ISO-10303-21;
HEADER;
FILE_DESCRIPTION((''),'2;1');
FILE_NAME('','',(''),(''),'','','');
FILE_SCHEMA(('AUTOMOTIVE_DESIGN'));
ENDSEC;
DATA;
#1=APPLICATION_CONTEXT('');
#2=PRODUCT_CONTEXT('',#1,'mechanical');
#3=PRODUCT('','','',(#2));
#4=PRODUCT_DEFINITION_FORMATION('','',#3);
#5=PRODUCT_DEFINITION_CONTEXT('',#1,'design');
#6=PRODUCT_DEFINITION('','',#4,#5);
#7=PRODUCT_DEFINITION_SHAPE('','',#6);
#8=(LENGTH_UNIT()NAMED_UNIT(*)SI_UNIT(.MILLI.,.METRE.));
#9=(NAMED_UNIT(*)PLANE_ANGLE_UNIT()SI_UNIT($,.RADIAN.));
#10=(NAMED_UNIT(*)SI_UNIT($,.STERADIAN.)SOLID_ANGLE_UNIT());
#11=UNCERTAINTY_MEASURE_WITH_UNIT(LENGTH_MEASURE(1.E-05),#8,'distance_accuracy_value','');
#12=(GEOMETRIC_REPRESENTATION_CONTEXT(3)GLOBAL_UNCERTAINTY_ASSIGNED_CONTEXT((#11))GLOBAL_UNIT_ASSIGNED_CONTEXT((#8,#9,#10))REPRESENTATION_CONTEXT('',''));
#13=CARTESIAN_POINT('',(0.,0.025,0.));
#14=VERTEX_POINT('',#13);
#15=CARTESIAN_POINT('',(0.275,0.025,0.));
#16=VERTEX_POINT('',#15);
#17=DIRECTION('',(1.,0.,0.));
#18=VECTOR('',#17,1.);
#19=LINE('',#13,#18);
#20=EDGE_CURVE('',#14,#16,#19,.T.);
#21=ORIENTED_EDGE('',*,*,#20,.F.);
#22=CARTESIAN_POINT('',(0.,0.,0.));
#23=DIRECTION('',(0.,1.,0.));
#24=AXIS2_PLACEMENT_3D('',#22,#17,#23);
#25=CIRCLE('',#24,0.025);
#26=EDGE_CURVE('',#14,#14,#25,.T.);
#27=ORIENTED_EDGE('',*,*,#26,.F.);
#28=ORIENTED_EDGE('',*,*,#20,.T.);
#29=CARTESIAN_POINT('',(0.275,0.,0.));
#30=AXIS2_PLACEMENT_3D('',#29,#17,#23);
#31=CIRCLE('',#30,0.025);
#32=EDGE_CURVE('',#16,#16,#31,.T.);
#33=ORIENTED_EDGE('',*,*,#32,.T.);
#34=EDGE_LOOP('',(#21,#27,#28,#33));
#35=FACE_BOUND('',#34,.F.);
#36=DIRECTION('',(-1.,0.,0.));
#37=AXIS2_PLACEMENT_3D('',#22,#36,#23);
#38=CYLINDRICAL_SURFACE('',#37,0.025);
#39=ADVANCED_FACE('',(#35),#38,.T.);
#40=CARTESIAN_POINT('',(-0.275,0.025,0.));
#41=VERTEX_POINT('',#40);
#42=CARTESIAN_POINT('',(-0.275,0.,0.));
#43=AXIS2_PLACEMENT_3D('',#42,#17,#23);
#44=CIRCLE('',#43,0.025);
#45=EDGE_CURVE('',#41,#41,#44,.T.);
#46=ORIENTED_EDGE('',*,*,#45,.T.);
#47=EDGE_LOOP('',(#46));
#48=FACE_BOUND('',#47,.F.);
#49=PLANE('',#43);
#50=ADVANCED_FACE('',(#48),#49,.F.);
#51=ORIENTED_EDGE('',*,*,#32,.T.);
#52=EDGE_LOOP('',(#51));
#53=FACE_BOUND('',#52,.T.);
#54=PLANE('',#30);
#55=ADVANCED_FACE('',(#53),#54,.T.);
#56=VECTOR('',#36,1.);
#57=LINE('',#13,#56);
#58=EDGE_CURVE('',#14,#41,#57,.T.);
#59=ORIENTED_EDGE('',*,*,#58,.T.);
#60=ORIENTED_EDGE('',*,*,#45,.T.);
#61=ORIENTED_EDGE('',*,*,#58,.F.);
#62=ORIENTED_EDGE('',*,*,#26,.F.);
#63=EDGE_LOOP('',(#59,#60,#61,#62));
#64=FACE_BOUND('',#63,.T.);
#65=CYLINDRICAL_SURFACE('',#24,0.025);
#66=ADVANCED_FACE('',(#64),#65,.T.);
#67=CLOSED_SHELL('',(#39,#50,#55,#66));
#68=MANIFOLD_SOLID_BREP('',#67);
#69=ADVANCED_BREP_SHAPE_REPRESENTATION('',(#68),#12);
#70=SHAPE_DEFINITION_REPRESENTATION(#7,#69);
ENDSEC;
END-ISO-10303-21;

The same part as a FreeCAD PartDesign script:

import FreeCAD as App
import Part
import Sketcher
from FreeCAD import Vector
Q = App.Units.Quantity

doc = App.newDocument("Part")
body = doc.addObject("PartDesign::Body", "Body")

# Sketch on YZ plane
sketch1 = doc.addObject("Sketcher::SketchObject", "Sketch")
body.addObject(sketch1)
sketch1.AttachmentSupport = (doc.YZ_Plane, [""])
sketch1.MapMode = "FlatFace"
sketch1.addGeometry(Part.Circle(Vector(0, 0, 0), Vector(0, 0, 1), 0.025), False)
sketch1.addConstraint([
    Sketcher.Constraint("Coincident", 0, 3, -1, 1),
    Sketcher.Constraint("Diameter", 0, Q("0.05 mm")),
])
pad1 = doc.addObject("PartDesign::Pad", "Pad")
body.addObject(pad1)
pad1.Profile = sketch1
pad1.Length = 0.55
pad1.Midplane = True

doc.recompute()
